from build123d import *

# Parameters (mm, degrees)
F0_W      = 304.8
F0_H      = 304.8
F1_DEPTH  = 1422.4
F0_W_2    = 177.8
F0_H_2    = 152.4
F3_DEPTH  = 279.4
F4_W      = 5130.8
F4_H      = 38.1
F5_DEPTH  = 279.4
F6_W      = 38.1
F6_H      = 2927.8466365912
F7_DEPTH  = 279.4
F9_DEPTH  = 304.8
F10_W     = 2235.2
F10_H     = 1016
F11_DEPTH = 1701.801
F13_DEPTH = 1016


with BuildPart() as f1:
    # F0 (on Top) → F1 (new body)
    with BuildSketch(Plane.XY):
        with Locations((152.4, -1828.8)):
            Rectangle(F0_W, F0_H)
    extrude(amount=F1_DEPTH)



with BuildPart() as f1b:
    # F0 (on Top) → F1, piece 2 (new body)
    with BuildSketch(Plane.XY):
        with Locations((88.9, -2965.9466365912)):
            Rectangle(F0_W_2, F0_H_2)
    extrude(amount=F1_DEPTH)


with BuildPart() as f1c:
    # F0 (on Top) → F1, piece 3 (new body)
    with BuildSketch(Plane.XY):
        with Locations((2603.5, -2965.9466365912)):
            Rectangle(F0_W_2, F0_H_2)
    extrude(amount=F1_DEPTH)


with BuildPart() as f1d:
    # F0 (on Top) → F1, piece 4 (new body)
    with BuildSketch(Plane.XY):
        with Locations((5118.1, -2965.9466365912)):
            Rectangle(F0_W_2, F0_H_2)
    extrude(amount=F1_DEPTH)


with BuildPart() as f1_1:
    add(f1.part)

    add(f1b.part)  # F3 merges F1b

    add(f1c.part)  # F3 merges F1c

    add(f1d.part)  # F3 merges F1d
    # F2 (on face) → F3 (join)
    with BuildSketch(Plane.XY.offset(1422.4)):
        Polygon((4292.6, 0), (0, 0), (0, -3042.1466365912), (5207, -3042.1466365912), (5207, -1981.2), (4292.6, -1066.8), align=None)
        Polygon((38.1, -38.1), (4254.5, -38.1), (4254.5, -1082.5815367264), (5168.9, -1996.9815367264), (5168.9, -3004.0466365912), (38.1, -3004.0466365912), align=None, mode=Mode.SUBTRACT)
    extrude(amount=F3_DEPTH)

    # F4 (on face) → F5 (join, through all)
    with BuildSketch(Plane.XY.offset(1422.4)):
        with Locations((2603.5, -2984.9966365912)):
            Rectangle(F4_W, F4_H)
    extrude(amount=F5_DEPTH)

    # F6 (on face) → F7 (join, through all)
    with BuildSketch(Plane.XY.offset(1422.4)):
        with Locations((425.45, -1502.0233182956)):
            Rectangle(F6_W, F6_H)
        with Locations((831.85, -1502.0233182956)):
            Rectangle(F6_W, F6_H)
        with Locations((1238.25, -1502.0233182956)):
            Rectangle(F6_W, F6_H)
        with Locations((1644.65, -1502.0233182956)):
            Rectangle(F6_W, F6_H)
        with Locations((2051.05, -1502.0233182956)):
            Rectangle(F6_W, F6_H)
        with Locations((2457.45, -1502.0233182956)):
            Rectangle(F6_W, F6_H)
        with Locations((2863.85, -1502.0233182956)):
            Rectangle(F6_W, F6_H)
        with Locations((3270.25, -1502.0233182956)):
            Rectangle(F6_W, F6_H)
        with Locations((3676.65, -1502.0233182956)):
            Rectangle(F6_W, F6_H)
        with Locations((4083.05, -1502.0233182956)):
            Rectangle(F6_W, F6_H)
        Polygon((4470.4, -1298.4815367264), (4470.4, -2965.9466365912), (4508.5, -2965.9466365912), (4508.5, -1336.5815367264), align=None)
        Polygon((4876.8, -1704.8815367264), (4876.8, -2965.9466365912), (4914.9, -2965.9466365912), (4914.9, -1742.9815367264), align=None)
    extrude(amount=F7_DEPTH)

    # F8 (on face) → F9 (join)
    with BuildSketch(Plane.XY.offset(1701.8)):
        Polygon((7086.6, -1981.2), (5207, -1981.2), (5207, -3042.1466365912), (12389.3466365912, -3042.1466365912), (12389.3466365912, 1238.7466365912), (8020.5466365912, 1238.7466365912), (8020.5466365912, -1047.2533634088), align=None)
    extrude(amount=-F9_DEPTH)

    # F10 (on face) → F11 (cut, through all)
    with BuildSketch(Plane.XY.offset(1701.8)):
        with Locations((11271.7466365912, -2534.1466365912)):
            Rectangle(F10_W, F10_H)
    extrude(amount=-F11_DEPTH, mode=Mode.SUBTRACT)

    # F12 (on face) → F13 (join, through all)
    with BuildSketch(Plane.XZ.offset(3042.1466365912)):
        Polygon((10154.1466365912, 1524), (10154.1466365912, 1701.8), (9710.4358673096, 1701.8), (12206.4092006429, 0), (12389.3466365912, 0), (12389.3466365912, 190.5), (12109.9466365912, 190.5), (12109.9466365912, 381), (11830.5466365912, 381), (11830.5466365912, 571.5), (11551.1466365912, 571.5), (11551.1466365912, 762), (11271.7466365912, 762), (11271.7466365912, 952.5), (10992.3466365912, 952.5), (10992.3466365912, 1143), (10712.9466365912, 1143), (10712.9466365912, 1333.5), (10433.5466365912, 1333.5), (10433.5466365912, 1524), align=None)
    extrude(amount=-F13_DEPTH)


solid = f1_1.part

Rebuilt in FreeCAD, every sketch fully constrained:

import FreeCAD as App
import Part
import Sketcher

V = App.Vector
Q = App.Units.Quantity

doc = App.newDocument("Part")
params = doc.addObject("Spreadsheet::Sheet", "Params")
for row, (alias, value) in enumerate([
    ("sketch1_width", "12 in"),
    ("pad1_length", "56 in"),
    ("sketch2_width", "7 in"),
    ("sketch2_height", "6 in"),
    ("pad2_length", "56 in"),
    ("sketch3_width", "7 in"),
    ("sketch3_height", "6 in"),
    ("pad3_length", "56 in"),
    ("sketch4_width", "7 in"),
    ("sketch4_height", "6 in"),
    ("pad4_length", "56 in"),
    ("sketch5_width", "169 in"),
    ("sketch5_width2", "205 in"),
    ("sketch5_width3", "166 in"),
    ("sketch5_height", "42 in"),
    ("pad5_length", "11 in"),
    ("sketch6_width", "202 in"),
    ("sketch6_height", "1.5 in"),
    ("pad6_length", "11 in"),
    ("sketch7_width", "1.5 in"),
    ("pad7_length", "11 in"),
    ("sketch8_width", "74 in"),
    ("sketch8_width2", "172 in"),
    ("sketch8_height", "90 in"),
    ("sketch8_length", "52 in"),
    ("pad8_length", "12 in"),
    ("sketch9_width", "88 in"),
    ("sketch9_height", "40 in"),
    ("sketch10_width", "11 in"),
    ("sketch10_height", "7 in"),
    ("sketch10_height2", "7.5 in"),
    ("pad9_length", "40 in"),
], start=1):
    params.set(f"A{row}", alias)
    params.set(f"B{row}", "=" + value)
    params.setAlias(f"B{row}", alias)

body = doc.addObject("PartDesign::Body", "Body")

# Sketch on XY plane
sketch1 = body.newObject("Sketcher::SketchObject", "Sketch")
sketch1.AttachmentSupport = (doc.getObject("XY_Plane"), [""])
sketch1.MapMode = "FlatFace"
sketch1.addGeometry(Part.LineSegment(V(0, -1676, 0), V(0, -1981, 0)), False)
sketch1.addGeometry(Part.LineSegment(V(0, -1981, 0), V(305, -1981, 0)), False)
sketch1.addGeometry(Part.LineSegment(V(305, -1981, 0), V(305, -1676, 0)), False)
sketch1.addGeometry(Part.LineSegment(V(305, -1676, 0), V(0, -1676, 0)), False)
sketch1.addConstraint(Sketcher.Constraint("Coincident", 0, 2, 1, 1))
sketch1.addConstraint(Sketcher.Constraint("Coincident", 1, 2, 2, 1))
sketch1.addConstraint(Sketcher.Constraint("Coincident", 2, 2, 3, 1))
sketch1.addConstraint(Sketcher.Constraint("Coincident", 3, 2, 0, 1))
sketch1.addConstraint(Sketcher.Constraint("Vertical", 0))
sketch1.addConstraint(Sketcher.Constraint("Horizontal", 1))
sketch1.addConstraint(Sketcher.Constraint("Vertical", 2))
sketch1.addConstraint(Sketcher.Constraint("Horizontal", 3))
sketch1.addConstraint(Sketcher.Constraint("PointOnObject", 0, 2, -2))
sketch1.addConstraint(Sketcher.Constraint("Equal", 3, 0))
sketch1.addConstraint(Sketcher.Constraint("DistanceX", 1, 1, 1, 2, Q("12 in")))
sketch1.addConstraint(Sketcher.Constraint("DistanceY", 0, 2, -1, 1, Q("78 in")))
sketch1.setExpression("Constraints[10]", "Params.sketch1_width")
pad1 = body.newObject("PartDesign::Pad", "Pad")
pad1.Profile = sketch1
pad1.setExpression("Length", "Params.pad1_length")
body2 = doc.addObject("PartDesign::Body", "Body001")

# Sketch on XY plane
sketch2 = body2.newObject("Sketcher::SketchObject", "Sketch001")
sketch2.AttachmentSupport = (doc.getObject("XY_Plane001"), [""])
sketch2.MapMode = "FlatFace"
sketch2.addGeometry(Part.LineSegment(V(0, -2890, 0), V(0, -3042, 0)), False)
sketch2.addGeometry(Part.LineSegment(V(0, -3042, 0), V(178, -3042, 0)), False)
sketch2.addGeometry(Part.LineSegment(V(178, -3042, 0), V(178, -2890, 0)), False)
sketch2.addGeometry(Part.LineSegment(V(178, -2890, 0), V(0, -2890, 0)), False)
sketch2.addConstraint(Sketcher.Constraint("Coincident", 0, 2, 1, 1))
sketch2.addConstraint(Sketcher.Constraint("Coincident", 1, 2, 2, 1))
sketch2.addConstraint(Sketcher.Constraint("Coincident", 2, 2, 3, 1))
sketch2.addConstraint(Sketcher.Constraint("Coincident", 3, 2, 0, 1))
sketch2.addConstraint(Sketcher.Constraint("Vertical", 0))
sketch2.addConstraint(Sketcher.Constraint("Horizontal", 1))
sketch2.addConstraint(Sketcher.Constraint("Vertical", 2))
sketch2.addConstraint(Sketcher.Constraint("Horizontal", 3))
sketch2.addConstraint(Sketcher.Constraint("PointOnObject", 0, 2, -2))
sketch2.addConstraint(Sketcher.Constraint("DistanceX", 1, 1, 1, 2, Q("7 in")))
sketch2.addConstraint(Sketcher.Constraint("DistanceY", 0, 2, 0, 1, Q("6 in")))
sketch2.addConstraint(Sketcher.Constraint("DistanceY", 0, 2, -1, 1, Q("3042.146637 mm")))
sketch2.setExpression("Constraints[9]", "Params.sketch2_width")
sketch2.setExpression("Constraints[10]", "Params.sketch2_height")
pad2 = body2.newObject("PartDesign::Pad", "Pad001")
pad2.Profile = sketch2
pad2.setExpression("Length", "Params.pad2_length")
body3 = doc.addObject("PartDesign::Body", "Body002")

# Sketch on XY plane
sketch3 = body3.newObject("Sketcher::SketchObject", "Sketch002")
sketch3.AttachmentSupport = (doc.getObject("XY_Plane002"), [""])
sketch3.MapMode = "FlatFace"
sketch3.addGeometry(Part.LineSegment(V(2515, -2890, 0), V(2515, -3042, 0)), False)
sketch3.addGeometry(Part.LineSegment(V(2515, -3042, 0), V(2692, -3042, 0)), False)
sketch3.addGeometry(Part.LineSegment(V(2692, -3042, 0), V(2692, -2890, 0)), False)
sketch3.addGeometry(Part.LineSegment(V(2692, -2890, 0), V(2515, -2890, 0)), False)
sketch3.addConstraint(Sketcher.Constraint("Coincident", 0, 2, 1, 1))
sketch3.addConstraint(Sketcher.Constraint("Coincident", 1, 2, 2, 1))
sketch3.addConstraint(Sketcher.Constraint("Coincident", 2, 2, 3, 1))
sketch3.addConstraint(Sketcher.Constraint("Coincident", 3, 2, 0, 1))
sketch3.addConstraint(Sketcher.Constraint("Vertical", 0))
sketch3.addConstraint(Sketcher.Constraint("Horizontal", 1))
sketch3.addConstraint(Sketcher.Constraint("Vertical", 2))
sketch3.addConstraint(Sketcher.Constraint("Horizontal", 3))
sketch3.addConstraint(Sketcher.Constraint("DistanceX", 1, 1, 1, 2, Q("7 in")))
sketch3.addConstraint(Sketcher.Constraint("DistanceY", 0, 2, 0, 1, Q("6 in")))
sketch3.addConstraint(Sketcher.Constraint("DistanceX", -1, 1, 0, 2, Q("99 in")))
sketch3.addConstraint(Sketcher.Constraint("DistanceY", 0, 2, -1, 1, Q("3042.146637 mm")))
sketch3.setExpression("Constraints[8]", "Params.sketch3_width")
sketch3.setExpression("Constraints[9]", "Params.sketch3_height")
pad3 = body3.newObject("PartDesign::Pad", "Pad002")
pad3.Profile = sketch3
pad3.setExpression("Length", "Params.pad3_length")
body4 = doc.addObject("PartDesign::Body", "Body003")

# Sketch on XY plane
sketch4 = body4.newObject("Sketcher::SketchObject", "Sketch003")
sketch4.AttachmentSupport = (doc.getObject("XY_Plane003"), [""])
sketch4.MapMode = "FlatFace"
sketch4.addGeometry(Part.LineSegment(V(5029, -2890, 0), V(5029, -3042, 0)), False)
sketch4.addGeometry(Part.LineSegment(V(5029, -3042, 0), V(5207, -3042, 0)), False)
sketch4.addGeometry(Part.LineSegment(V(5207, -3042, 0), V(5207, -2890, 0)), False)
sketch4.addGeometry(Part.LineSegment(V(5207, -2890, 0), V(5029, -2890, 0)), False)
sketch4.addConstraint(Sketcher.Constraint("Coincident", 0, 2, 1, 1))
sketch4.addConstraint(Sketcher.Constraint("Coincident", 1, 2, 2, 1))
sketch4.addConstraint(Sketcher.Constraint("Coincident", 2, 2, 3, 1))
sketch4.addConstraint(Sketcher.Constraint("Coincident", 3, 2, 0, 1))
sketch4.addConstraint(Sketcher.Constraint("Vertical", 0))
sketch4.addConstraint(Sketcher.Constraint("Horizontal", 1))
sketch4.addConstraint(Sketcher.Constraint("Vertical", 2))
sketch4.addConstraint(Sketcher.Constraint("Horizontal", 3))
sketch4.addConstraint(Sketcher.Constraint("DistanceX", 1, 1, 1, 2, Q("7 in")))
sketch4.addConstraint(Sketcher.Constraint("DistanceY", 0, 2, 0, 1, Q("6 in")))
sketch4.addConstraint(Sketcher.Constraint("DistanceX", -1, 1, 0, 2, Q("198 in")))
sketch4.addConstraint(Sketcher.Constraint("DistanceY", 0, 2, -1, 1, Q("3042.146637 mm")))
sketch4.setExpression("Constraints[8]", "Params.sketch4_width")
sketch4.setExpression("Constraints[9]", "Params.sketch4_height")
pad4 = body4.newObject("PartDesign::Pad", "Pad003")
pad4.Profile = sketch4
pad4.setExpression("Length", "Params.pad4_length")
body.AllowCompound = True
doc.recompute()

boolean = body.newObject("PartDesign::Boolean", "Boolean")
boolean.Type = "Fuse"
boolean.addObjects([body2])
doc.recompute()

boolean2 = body.newObject("PartDesign::Boolean", "Boolean001")
boolean2.Type = "Fuse"
boolean2.addObjects([body3])
doc.recompute()

boolean3 = body.newObject("PartDesign::Boolean", "Boolean002")
boolean3.Type = "Fuse"
boolean3.addObjects([body4])

# Sketch on XY plane
sketch5 = body.newObject("Sketcher::SketchObject", "Sketch004")
sketch5.AttachmentSupport = (doc.getObject("XY_Plane"), [""])
sketch5.MapMode = "FlatFace"
sketch5.AttachmentOffset = App.Placement(V(0, 0, 56 * 25.4), App.Rotation())
sketch5.addGeometry(Part.LineSegment(V(4293, 0, 0), V(0, 0, 0)), False)
sketch5.addGeometry(Part.LineSegment(V(0, 0, 0), V(0, -3042, 0)), False)
sketch5.addGeometry(Part.LineSegment(V(0, -3042, 0), V(5207, -3042, 0)), False)
sketch5.addGeometry(Part.LineSegment(V(5207, -3042, 0), V(5207, -1981, 0)), False)
sketch5.addGeometry(Part.LineSegment(V(5207, -1981, 0), V(4293, -1067, 0)), False)
sketch5.addGeometry(Part.LineSegment(V(4293, -1067, 0), V(4293, 0, 0)), False)
sketch5.addGeometry(Part.LineSegment(V(38, -3004, 0), V(38, -38, 0)), False)
sketch5.addGeometry(Part.LineSegment(V(38, -38, 0), V(4254, -38, 0)), False)
sketch5.addGeometry(Part.LineSegment(V(4254, -38, 0), V(4254, -1083, 0)), False)
sketch5.addGeometry(Part.LineSegment(V(4254, -1083, 0), V(5169, -1997, 0)), False)
sketch5.addGeometry(Part.LineSegment(V(5169, -1997, 0), V(5169, -3004, 0)), False)
sketch5.addGeometry(Part.LineSegment(V(5169, -3004, 0), V(38, -3004, 0)), False)
sketch5.addConstraint(Sketcher.Constraint("Coincident", 0, 2, 1, 1))
sketch5.addConstraint(Sketcher.Constraint("Coincident", 1, 2, 2, 1))
sketch5.addConstraint(Sketcher.Constraint("Coincident", 2, 2, 3, 1))
sketch5.addConstraint(Sketcher.Constraint("Coincident", 3, 2, 4, 1))
sketch5.addConstraint(Sketcher.Constraint("Coincident", 4, 2, 5, 1))
sketch5.addConstraint(Sketcher.Constraint("Coincident", 5, 2, 0, 1))
sketch5.addConstraint(Sketcher.Constraint("Coincident", 6, 2, 7, 1))
sketch5.addConstraint(Sketcher.Constraint("Coincident", 7, 2, 8, 1))
sketch5.addConstraint(Sketcher.Constraint("Coincident", 8, 2, 9, 1))
sketch5.addConstraint(Sketcher.Constraint("Coincident", 9, 2, 10, 1))
sketch5.addConstraint(Sketcher.Constraint("Coincident", 10, 2, 11, 1))
sketch5.addConstraint(Sketcher.Constraint("Coincident", 11, 2, 6, 1))
sketch5.addConstraint(Sketcher.Constraint("Horizontal", 0))
sketch5.addConstraint(Sketcher.Constraint("Vertical", 1))
sketch5.addConstraint(Sketcher.Constraint("Horizontal", 2))
sketch5.addConstraint(Sketcher.Constraint("Vertical", 3))
sketch5.addConstraint(Sketcher.Constraint("Vertical", 5))
sketch5.addConstraint(Sketcher.Constraint("Vertical", 6))
sketch5.addConstraint(Sketcher.Constraint("Horizontal", 7))
sketch5.addConstraint(Sketcher.Constraint("Vertical", 8))
sketch5.addConstraint(Sketcher.Constraint("Vertical", 10))
sketch5.addConstraint(Sketcher.Constraint("Horizontal", 11))
sketch5.addConstraint(Sketcher.Constraint("Coincident", 0, 2, -1, 1))
sketch5.addConstraint(Sketcher.Constraint("Parallel", 4, 9))
sketch5.addConstraint(Sketcher.Constraint("Equal", 4, 9))
sketch5.addConstraint(Sketcher.Constraint("DistanceX", 0, 2, 0, 1, Q("169 in")))
sketch5.addConstraint(Sketcher.Constraint("DistanceX", 2, 1, 2, 2, Q("205 in")))
sketch5.addConstraint(Sketcher.Constraint("DistanceX", 7, 1, 7, 2, Q("166 in")))
sketch5.addConstraint(Sketcher.Constraint("DistanceY", 5, 1, 5, 2, Q("42 in")))
sketch5.addConstraint(Sketcher.Constraint("DistanceY", 3, 2, -1, 1, Q("78 in")))
sketch5.addConstraint(Sketcher.Constraint("DistanceX", -1, 1, 6, 2, Q("1.5 in")))
sketch5.addConstraint(Sketcher.Constraint("DistanceY", 6, 2, -1, 1, Q("1.5 in")))
sketch5.addConstraint(Sketcher.Constraint("DistanceY", 2, 2, 10, 2, Q("1.5 in")))
sketch5.addConstraint(Sketcher.Constraint("DistanceY", 10, 2, 10, 1, Q("1007.0651 mm")))
sketch5.addConstraint(Sketcher.Constraint("DistanceY", 1, 2, 1, 1, Q("3042.146637 mm")))
sketch5.setExpression("Constraints[25]", "Params.sketch5_width")
sketch5.setExpression("Constraints[26]", "Params.sketch5_width2")
sketch5.setExpression("Constraints[27]", "Params.sketch5_width3")
sketch5.setExpression("Constraints[28]", "Params.sketch5_height")
pad5 = body.newObject("PartDesign::Pad", "Pad004")
pad5.Profile = sketch5
pad5.setExpression("Length", "Params.pad5_length")

# Sketch on XY plane
sketch6 = body.newObject("Sketcher::SketchObject", "Sketch005")
sketch6.AttachmentSupport = (doc.getObject("XY_Plane"), [""])
sketch6.MapMode = "FlatFace"
sketch6.AttachmentOffset = App.Placement(V(0, 0, 56 * 25.4), App.Rotation())
sketch6.addGeometry(Part.LineSegment(V(38, -2966, 0), V(38, -3004, 0)), False)
sketch6.addGeometry(Part.LineSegment(V(38, -3004, 0), V(5169, -3004, 0)), False)
sketch6.addGeometry(Part.LineSegment(V(5169, -3004, 0), V(5169, -2966, 0)), False)
sketch6.addGeometry(Part.LineSegment(V(5169, -2966, 0), V(38, -2966, 0)), False)
sketch6.addConstraint(Sketcher.Constraint("Coincident", 0, 2, 1, 1))
sketch6.addConstraint(Sketcher.Constraint("Coincident", 1, 2, 2, 1))
sketch6.addConstraint(Sketcher.Constraint("Coincident", 2, 2, 3, 1))
sketch6.addConstraint(Sketcher.Constraint("Coincident", 3, 2, 0, 1))
sketch6.addConstraint(Sketcher.Constraint("Vertical", 0))
sketch6.addConstraint(Sketcher.Constraint("Horizontal", 1))
sketch6.addConstraint(Sketcher.Constraint("Vertical", 2))
sketch6.addConstraint(Sketcher.Constraint("Horizontal", 3))
sketch6.addConstraint(Sketcher.Constraint("DistanceX", 1, 1, 1, 2, Q("202 in")))
sketch6.addConstraint(Sketcher.Constraint("DistanceY", 0, 2, 0, 1, Q("1.5 in")))
sketch6.addConstraint(Sketcher.Constraint("DistanceX", -1, 1, 0, 2, Q("1.5 in")))
sketch6.addConstraint(Sketcher.Constraint("DistanceY", 0, 2, -1, 1, Q("3004.046637 mm")))
sketch6.setExpression("Constraints[8]", "Params.sketch6_width")
sketch6.setExpression("Constraints[9]", "Params.sketch6_height")
pad6 = body.newObject("PartDesign::Pad", "Pad005")
pad6.Profile = sketch6
pad6.setExpression("Length", "Params.pad6_length")

# Sketch on XY plane
sketch7 = body.newObject("Sketcher::SketchObject", "Sketch006")
sketch7.AttachmentSupport = (doc.getObject("XY_Plane"), [""])
sketch7.MapMode = "FlatFace"
sketch7.AttachmentOffset = App.Placement(V(0, 0, 56 * 25.4), App.Rotation())
sketch7.addGeometry(Part.LineSegment(V(406, -38, 0), V(406, -2966, 0)), False)
sketch7.addGeometry(Part.LineSegment(V(406, -2966, 0), V(444, -2966, 0)), False)
sketch7.addGeometry(Part.LineSegment(V(444, -2966, 0), V(444, -38, 0)), False)
sketch7.addGeometry(Part.LineSegment(V(444, -38, 0), V(406, -38, 0)), False)
sketch7.addGeometry(Part.LineSegment(V(813, -38, 0), V(813, -2966, 0)), False)
sketch7.addGeometry(Part.LineSegment(V(813, -2966, 0), V(851, -2966, 0)), False)
sketch7.addGeometry(Part.LineSegment(V(851, -2966, 0), V(851, -38, 0)), False)
sketch7.addGeometry(Part.LineSegment(V(851, -38, 0), V(813, -38, 0)), False)
sketch7.addGeometry(Part.LineSegment(V(1219, -38, 0), V(1219, -2966, 0)), False)
sketch7.addGeometry(Part.LineSegment(V(1219, -2966, 0), V(1257, -2966, 0)), False)
sketch7.addGeometry(Part.LineSegment(V(1257, -2966, 0), V(1257, -38, 0)), False)
sketch7.addGeometry(Part.LineSegment(V(1257, -38, 0), V(1219, -38, 0)), False)
sketch7.addGeometry(Part.LineSegment(V(1626, -38, 0), V(1626, -2966, 0)), False)
sketch7.addGeometry(Part.LineSegment(V(1626, -2966, 0), V(1664, -2966, 0)), False)
sketch7.addGeometry(Part.LineSegment(V(1664, -2966, 0), V(1664, -38, 0)), False)
sketch7.addGeometry(Part.LineSegment(V(1664, -38, 0), V(1626, -38, 0)), False)
sketch7.addGeometry(Part.LineSegment(V(2032, -38, 0), V(2032, -2966, 0)), False)
sketch7.addGeometry(Part.LineSegment(V(2032, -2966, 0), V(2070, -2966, 0)), False)
sketch7.addGeometry(Part.LineSegment(V(2070, -2966, 0), V(2070, -38, 0)), False)
sketch7.addGeometry(Part.LineSegment(V(2070, -38, 0), V(2032, -38, 0)), False)
sketch7.addGeometry(Part.LineSegment(V(2438, -38, 0), V(2438, -2966, 0)), False)
sketch7.addGeometry(Part.LineSegment(V(2438, -2966, 0), V(2476, -2966, 0)), False)
sketch7.addGeometry(Part.LineSegment(V(2476, -2966, 0), V(2476, -38, 0)), False)
sketch7.addGeometry(Part.LineSegment(V(2476, -38, 0), V(2438, -38, 0)), False)
sketch7.addGeometry(Part.LineSegment(V(2845, -38, 0), V(2845, -2966, 0)), False)
sketch7.addGeometry(Part.LineSegment(V(2845, -2966, 0), V(2883, -2966, 0)), False)
sketch7.addGeometry(Part.LineSegment(V(2883, -2966, 0), V(2883, -38, 0)), False)
sketch7.addGeometry(Part.LineSegment(V(2883, -38, 0), V(2845, -38, 0)), False)
sketch7.addGeometry(Part.LineSegment(V(3251, -38, 0), V(3251, -2966, 0)), False)
sketch7.addGeometry(Part.LineSegment(V(3251, -2966, 0), V(3289, -2966, 0)), False)
sketch7.addGeometry(Part.LineSegment(V(3289, -2966, 0), V(3289, -38, 0)), False)
sketch7.addGeometry(Part.LineSegment(V(3289, -38, 0), V(3251, -38, 0)), False)
sketch7.addGeometry(Part.LineSegment(V(3658, -38, 0), V(3658, -2966, 0)), False)
sketch7.addGeometry(Part.LineSegment(V(3658, -2966, 0), V(3696, -2966, 0)), False)
sketch7.addGeometry(Part.LineSegment(V(3696, -2966, 0), V(3696, -38, 0)), False)
sketch7.addGeometry(Part.LineSegment(V(3696, -38, 0), V(3658, -38, 0)), False)
sketch7.addGeometry(Part.LineSegment(V(4064, -38, 0), V(4064, -2966, 0)), False)
sketch7.addGeometry(Part.LineSegment(V(4064, -2966, 0), V(4102, -2966, 0)), False)
sketch7.addGeometry(Part.LineSegment(V(4102, -2966, 0), V(4102, -38, 0)), False)
sketch7.addGeometry(Part.LineSegment(V(4102, -38, 0), V(4064, -38, 0)), False)
sketch7.addGeometry(Part.LineSegment(V(4470, -1298, 0), V(4470, -2966, 0)), False)
sketch7.addGeometry(Part.LineSegment(V(4470, -2966, 0), V(4508, -2966, 0)), False)
sketch7.addGeometry(Part.LineSegment(V(4508, -2966, 0), V(4508, -1337, 0)), False)
sketch7.addGeometry(Part.LineSegment(V(4508, -1337, 0), V(4470, -1298, 0)), False)
sketch7.addGeometry(Part.LineSegment(V(4877, -1705, 0), V(4877, -2966, 0)), False)
sketch7.addGeometry(Part.LineSegment(V(4877, -2966, 0), V(4915, -2966, 0)), False)
sketch7.addGeometry(Part.LineSegment(V(4915, -2966, 0), V(4915, -1743, 0)), False)
sketch7.addGeometry(Part.LineSegment(V(4915, -1743, 0), V(4877, -1705, 0)), False)
sketch7.addConstraint(Sketcher.Constraint("Coincident", 0, 2, 1, 1))
sketch7.addConstraint(Sketcher.Constraint("Coincident", 1, 2, 2, 1))
sketch7.addConstraint(Sketcher.Constraint("Coincident", 2, 2, 3, 1))
sketch7.addConstraint(Sketcher.Constraint("Coincident", 3, 2, 0, 1))
sketch7.addConstraint(Sketcher.Constraint("Coincident", 4, 2, 5, 1))
sketch7.addConstraint(Sketcher.Constraint("Coincident", 5, 2, 6, 1))
sketch7.addConstraint(Sketcher.Constraint("Coincident", 6, 2, 7, 1))
sketch7.addConstraint(Sketcher.Constraint("Coincident", 7, 2, 4, 1))
sketch7.addConstraint(Sketcher.Constraint("Coincident", 8, 2, 9, 1))
sketch7.addConstraint(Sketcher.Constraint("Coincident", 9, 2, 10, 1))
sketch7.addConstraint(Sketcher.Constraint("Coincident", 10, 2, 11, 1))
sketch7.addConstraint(Sketcher.Constraint("Coincident", 11, 2, 8, 1))
sketch7.addConstraint(Sketcher.Constraint("Coincident", 12, 2, 13, 1))
sketch7.addConstraint(Sketcher.Constraint("Coincident", 13, 2, 14, 1))
sketch7.addConstraint(Sketcher.Constraint("Coincident", 14, 2, 15, 1))
sketch7.addConstraint(Sketcher.Constraint("Coincident", 15, 2, 12, 1))
sketch7.addConstraint(Sketcher.Constraint("Coincident", 16, 2, 17, 1))
sketch7.addConstraint(Sketcher.Constraint("Coincident", 17, 2, 18, 1))
sketch7.addConstraint(Sketcher.Constraint("Coincident", 18, 2, 19, 1))
sketch7.addConstraint(Sketcher.Constraint("Coincident", 19, 2, 16, 1))
sketch7.addConstraint(Sketcher.Constraint("Coincident", 20, 2, 21, 1))
sketch7.addConstraint(Sketcher.Constraint("Coincident", 21, 2, 22, 1))
sketch7.addConstraint(Sketcher.Constraint("Coincident", 22, 2, 23, 1))
sketch7.addConstraint(Sketcher.Constraint("Coincident", 23, 2, 20, 1))
sketch7.addConstraint(Sketcher.Constraint("Coincident", 24, 2, 25, 1))
sketch7.addConstraint(Sketcher.Constraint("Coincident", 25, 2, 26, 1))
sketch7.addConstraint(Sketcher.Constraint("Coincident", 26, 2, 27, 1))
sketch7.addConstraint(Sketcher.Constraint("Coincident", 27, 2, 24, 1))
sketch7.addConstraint(Sketcher.Constraint("Coincident", 28, 2, 29, 1))
sketch7.addConstraint(Sketcher.Constraint("Coincident", 29, 2, 30, 1))
sketch7.addConstraint(Sketcher.Constraint("Coincident", 30, 2, 31, 1))
sketch7.addConstraint(Sketcher.Constraint("Coincident", 31, 2, 28, 1))
sketch7.addConstraint(Sketcher.Constraint("Coincident", 32, 2, 33, 1))
sketch7.addConstraint(Sketcher.Constraint("Coincident", 33, 2, 34, 1))
sketch7.addConstraint(Sketcher.Constraint("Coincident", 34, 2, 35, 1))
sketch7.addConstraint(Sketcher.Constraint("Coincident", 35, 2, 32, 1))
sketch7.addConstraint(Sketcher.Constraint("Coincident", 36, 2, 37, 1))
sketch7.addConstraint(Sketcher.Constraint("Coincident", 37, 2, 38, 1))
sketch7.addConstraint(Sketcher.Constraint("Coincident", 38, 2, 39, 1))
sketch7.addConstraint(Sketcher.Constraint("Coincident", 39, 2, 36, 1))
sketch7.addConstraint(Sketcher.Constraint("Coincident", 40, 2, 41, 1))
sketch7.addConstraint(Sketcher.Constraint("Coincident", 41, 2, 42, 1))
sketch7.addConstraint(Sketcher.Constraint("Coincident", 42, 2, 43, 1))
sketch7.addConstraint(Sketcher.Constraint("Coincident", 43, 2, 40, 1))
sketch7.addConstraint(Sketcher.Constraint("Coincident", 44, 2, 45, 1))
sketch7.addConstraint(Sketcher.Constraint("Coincident", 45, 2, 46, 1))
sketch7.addConstraint(Sketcher.Constraint("Coincident", 46, 2, 47, 1))
sketch7.addConstraint(Sketcher.Constraint("Coincident", 47, 2, 44, 1))
sketch7.addConstraint(Sketcher.Constraint("Vertical", 0))
sketch7.addConstraint(Sketcher.Constraint("Horizontal", 1))
sketch7.addConstraint(Sketcher.Constraint("Vertical", 2))
sketch7.addConstraint(Sketcher.Constraint("Horizontal", 3))
sketch7.addConstraint(Sketcher.Constraint("Vertical", 4))
sketch7.addConstraint(Sketcher.Constraint("Horizontal", 5))
sketch7.addConstraint(Sketcher.Constraint("Vertical", 6))
sketch7.addConstraint(Sketcher.Constraint("Horizontal", 7))
sketch7.addConstraint(Sketcher.Constraint("Vertical", 8))
sketch7.addConstraint(Sketcher.Constraint("Horizontal", 9))
sketch7.addConstraint(Sketcher.Constraint("Vertical", 10))
sketch7.addConstraint(Sketcher.Constraint("Horizontal", 11))
sketch7.addConstraint(Sketcher.Constraint("Vertical", 12))
sketch7.addConstraint(Sketcher.Constraint("Horizontal", 13))
sketch7.addConstraint(Sketcher.Constraint("Vertical", 14))
sketch7.addConstraint(Sketcher.Constraint("Horizontal", 15))
sketch7.addConstraint(Sketcher.Constraint("Vertical", 16))
sketch7.addConstraint(Sketcher.Constraint("Horizontal", 17))
sketch7.addConstraint(Sketcher.Constraint("Vertical", 18))
sketch7.addConstraint(Sketcher.Constraint("Horizontal", 19))
sketch7.addConstraint(Sketcher.Constraint("Vertical", 20))
sketch7.addConstraint(Sketcher.Constraint("Horizontal", 21))
sketch7.addConstraint(Sketcher.Constraint("Vertical", 22))
sketch7.addConstraint(Sketcher.Constraint("Horizontal", 23))
sketch7.addConstraint(Sketcher.Constraint("Vertical", 24))
sketch7.addConstraint(Sketcher.Constraint("Horizontal", 25))
sketch7.addConstraint(Sketcher.Constraint("Vertical", 26))
sketch7.addConstraint(Sketcher.Constraint("Horizontal", 27))
sketch7.addConstraint(Sketcher.Constraint("Vertical", 28))
sketch7.addConstraint(Sketcher.Constraint("Horizontal", 29))
sketch7.addConstraint(Sketcher.Constraint("Vertical", 30))
sketch7.addConstraint(Sketcher.Constraint("Horizontal", 31))
sketch7.addConstraint(Sketcher.Constraint("Vertical", 32))
sketch7.addConstraint(Sketcher.Constraint("Horizontal", 33))
sketch7.addConstraint(Sketcher.Constraint("Vertical", 34))
sketch7.addConstraint(Sketcher.Constraint("Horizontal", 35))
sketch7.addConstraint(Sketcher.Constraint("Vertical", 36))
sketch7.addConstraint(Sketcher.Constraint("Horizontal", 37))
sketch7.addConstraint(Sketcher.Constraint("Vertical", 38))
sketch7.addConstraint(Sketcher.Constraint("Horizontal", 39))
sketch7.addConstraint(Sketcher.Constraint("Vertical", 40))
sketch7.addConstraint(Sketcher.Constraint("Horizontal", 41))
sketch7.addConstraint(Sketcher.Constraint("Vertical", 42))
sketch7.addConstraint(Sketcher.Constraint("Vertical", 44))
sketch7.addConstraint(Sketcher.Constraint("Horizontal", 45))
sketch7.addConstraint(Sketcher.Constraint("Vertical", 46))
sketch7.addConstraint(Sketcher.Constraint("Parallel", 43, 47))
sketch7.addConstraint(Sketcher.Constraint("Horizontal", 1, 2, 4, 2))
sketch7.addConstraint(Sketcher.Constraint("Horizontal", 3, 2, 6, 2))
sketch7.addConstraint(Sketcher.Constraint("Horizontal", 5, 2, 8, 2))
sketch7.addConstraint(Sketcher.Constraint("Horizontal", 7, 2, 10, 2))
sketch7.addConstraint(Sketcher.Constraint("Horizontal", 9, 2, 12, 2))
sketch7.addConstraint(Sketcher.Constraint("Horizontal", 11, 2, 14, 2))
sketch7.addConstraint(Sketcher.Constraint("Horizontal", 13, 2, 16, 2))
sketch7.addConstraint(Sketcher.Constraint("Horizontal", 15, 2, 18, 2))
sketch7.addConstraint(Sketcher.Constraint("Horizontal", 17, 2, 20, 2))
sketch7.addConstraint(Sketcher.Constraint("Horizontal", 19, 2, 22, 2))
sketch7.addConstraint(Sketcher.Constraint("Horizontal", 21, 2, 24, 2))
sketch7.addConstraint(Sketcher.Constraint("Horizontal", 23, 2, 26, 2))
sketch7.addConstraint(Sketcher.Constraint("Horizontal", 25, 2, 28, 2))
sketch7.addConstraint(Sketcher.Constraint("Horizontal", 27, 2, 30, 2))
sketch7.addConstraint(Sketcher.Constraint("Horizontal", 29, 2, 32, 2))
sketch7.addConstraint(Sketcher.Constraint("Horizontal", 31, 2, 34, 2))
sketch7.addConstraint(Sketcher.Constraint("Horizontal", 33, 2, 36, 2))
sketch7.addConstraint(Sketcher.Constraint("Horizontal", 35, 2, 38, 2))
sketch7.addConstraint(Sketcher.Constraint("Horizontal", 37, 2, 40, 2))
sketch7.addConstraint(Sketcher.Constraint("Horizontal", 41, 2, 44, 2))
sketch7.addConstraint(Sketcher.Constraint("Equal", 3, 5))
sketch7.addConstraint(Sketcher.Constraint("Equal", 7, 9))
sketch7.addConstraint(Sketcher.Constraint("Equal", 11, 13))
sketch7.addConstraint(Sketcher.Constraint("Equal", 15, 17))
sketch7.addConstraint(Sketcher.Constraint("Equal", 19, 21))
sketch7.addConstraint(Sketcher.Constraint("Equal", 23, 25))
sketch7.addConstraint(Sketcher.Constraint("Equal", 27, 29))
sketch7.addConstraint(Sketcher.Constraint("Equal", 31, 33))
sketch7.addConstraint(Sketcher.Constraint("Equal", 35, 37))
sketch7.addConstraint(Sketcher.Constraint("Equal", 39, 41))
sketch7.addConstraint(Sketcher.Constraint("Equal", 41, 45))
sketch7.addConstraint(Sketcher.Constraint("DistanceX", 1, 1, 1, 2, Q("1.5 in")))
sketch7.addConstraint(Sketcher.Constraint("DistanceX", -1, 1, 0, 2, Q("16 in")))
sketch7.addConstraint(Sketcher.Constraint("DistanceX", -1, 1, 4, 2, Q("32 in")))
sketch7.addConstraint(Sketcher.Constraint("DistanceX", -1, 1, 8, 2, Q("48 in")))
sketch7.addConstraint(Sketcher.Constraint("DistanceX", -1, 1, 12, 2, Q("64 in")))
sketch7.addConstraint(Sketcher.Constraint("DistanceX", -1, 1, 16, 2, Q("80 in")))
sketch7.addConstraint(Sketcher.Constraint("DistanceX", -1, 1, 20, 2, Q("96 in")))
sketch7.addConstraint(Sketcher.Constraint("DistanceX", -1, 1, 24, 2, Q("112 in")))
sketch7.addConstraint(Sketcher.Constraint("DistanceX", -1, 1, 28, 2, Q("128 in")))
sketch7.addConstraint(Sketcher.Constraint("DistanceX", -1, 1, 32, 2, Q("144 in")))
sketch7.addConstraint(Sketcher.Constraint("DistanceX", -1, 1, 36, 2, Q("160 in")))
sketch7.addConstraint(Sketcher.Constraint("DistanceX", -1, 1, 40, 2, Q("176 in")))
sketch7.addConstraint(Sketcher.Constraint("DistanceX", -1, 1, 44, 2, Q("192 in")))
sketch7.addConstraint(Sketcher.Constraint("Angle", 43, Q("135 deg")))
sketch7.addConstraint(Sketcher.Constraint("DistanceY", 46, 2, 42, 2, Q("16 in")))
sketch7.addConstraint(Sketcher.Constraint("DistanceY", 2, 2, -1, 1, Q("1.5 in")))
sketch7.addConstraint(Sketcher.Constraint("DistanceY", 40, 2, 40, 1, Q("1667.4651 mm")))
sketch7.addConstraint(Sketcher.Constraint("DistanceY", 0, 2, 0, 1, Q("2927.846637 mm")))
sketch7.setExpression("Constraints[126]", "Params.sketch7_width")
pad7 = body.newObject("PartDesign::Pad", "Pad006")
pad7.Profile = sketch7
pad7.setExpression("Length", "Params.pad7_length")

# Sketch on XY plane
sketch8 = body.newObject("Sketcher::SketchObject", "Sketch007")
sketch8.AttachmentSupport = (doc.getObject("XY_Plane"), [""])
sketch8.MapMode = "FlatFace"
sketch8.AttachmentOffset = App.Placement(V(0, 0, 67 * 25.4), App.Rotation())
sketch8.addGeometry(Part.LineSegment(V(7087, -1981, 0), V(5207, -1981, 0)), False)
sketch8.addGeometry(Part.LineSegment(V(5207, -1981, 0), V(5207, -3042, 0)), False)
sketch8.addGeometry(Part.LineSegment(V(5207, -3042, 0), V(12389, -3042, 0)), False)
sketch8.addGeometry(Part.LineSegment(V(12389, -3042, 0), V(12389, 1239, 0)), False)
sketch8.addGeometry(Part.LineSegment(V(12389, 1239, 0), V(8021, 1239, 0)), False)
sketch8.addGeometry(Part.LineSegment(V(8021, 1239, 0), V(8021, -1047, 0)), False)
sketch8.addGeometry(Part.LineSegment(V(8021, -1047, 0), V(7087, -1981, 0)), False)
sketch8.addConstraint(Sketcher.Constraint("Coincident", 0, 2, 1, 1))
sketch8.addConstraint(Sketcher.Constraint("Coincident", 1, 2, 2, 1))
sketch8.addConstraint(Sketcher.Constraint("Coincident", 2, 2, 3, 1))
sketch8.addConstraint(Sketcher.Constraint("Coincident", 3, 2, 4, 1))
sketch8.addConstraint(Sketcher.Constraint("Coincident", 4, 2, 5, 1))
sketch8.addConstraint(Sketcher.Constraint("Coincident", 5, 2, 6, 1))
sketch8.addConstraint(Sketcher.Constraint("Coincident", 6, 2, 0, 1))
sketch8.addConstraint(Sketcher.Constraint("Horizontal", 0))
sketch8.addConstraint(Sketcher.Constraint("Vertical", 1))
sketch8.addConstraint(Sketcher.Constraint("Horizontal", 2))
sketch8.addConstraint(Sketcher.Constraint("Vertical", 3))
sketch8.addConstraint(Sketcher.Constraint("Horizontal", 4))
sketch8.addConstraint(Sketcher.Constraint("Vertical", 5))
sketch8.addConstraint(Sketcher.Constraint("DistanceX", 0, 2, 0, 1, Q("74 in")))
sketch8.addConstraint(Sketcher.Constraint("DistanceX", 4, 2, 4, 1, Q("172 in")))
sketch8.addConstraint(Sketcher.Constraint("DistanceY", 5, 2, 5, 1, Q("90 in")))
sketch8.addConstraint(Sketcher.Constraint("Distance", 6, Q("52 in")))
sketch8.addConstraint(Sketcher.Constraint("DistanceX", -1, 1, 0, 2, Q("205 in")))
sketch8.addConstraint(Sketcher.Constraint("DistanceY", 0, 2, -1, 1, Q("78 in")))
sketch8.addConstraint(Sketcher.Constraint("Angle", 6, Q("-135 deg")))
sketch8.addConstraint(Sketcher.Constraint("DistanceY", 1, 2, 1, 1, Q("1060.946637 mm")))
sketch8.setExpression("Constraints[13]", "Params.sketch8_width")
sketch8.setExpression("Constraints[14]", "Params.sketch8_width2")
sketch8.setExpression("Constraints[15]", "Params.sketch8_height")
sketch8.setExpression("Constraints[16]", "Params.sketch8_length")
pad8 = body.newObject("PartDesign::Pad", "Pad007")
pad8.Profile = sketch8
pad8.setExpression("Length", "Params.pad8_length")
pad8.Reversed = True

# Sketch on XY plane
sketch9 = body.newObject("Sketcher::SketchObject", "Sketch008")
sketch9.AttachmentSupport = (doc.getObject("XY_Plane"), [""])
sketch9.MapMode = "FlatFace"
sketch9.AttachmentOffset = App.Placement(V(0, 0, 67 * 25.4), App.Rotation())
sketch9.addGeometry(Part.LineSegment(V(10154, -2026, 0), V(10154, -3042, 0)), False)
sketch9.addGeometry(Part.LineSegment(V(10154, -3042, 0), V(12389, -3042, 0)), False)
sketch9.addGeometry(Part.LineSegment(V(12389, -3042, 0), V(12389, -2026, 0)), False)
sketch9.addGeometry(Part.LineSegment(V(12389, -2026, 0), V(10154, -2026, 0)), False)
sketch9.addConstraint(Sketcher.Constraint("Coincident", 0, 2, 1, 1))
sketch9.addConstraint(Sketcher.Constraint("Coincident", 1, 2, 2, 1))
sketch9.addConstraint(Sketcher.Constraint("Coincident", 2, 2, 3, 1))
sketch9.addConstraint(Sketcher.Constraint("Coincident", 3, 2, 0, 1))
sketch9.addConstraint(Sketcher.Constraint("Vertical", 0))
sketch9.addConstraint(Sketcher.Constraint("Horizontal", 1))
sketch9.addConstraint(Sketcher.Constraint("Vertical", 2))
sketch9.addConstraint(Sketcher.Constraint("Horizontal", 3))
sketch9.addConstraint(Sketcher.Constraint("DistanceX", 1, 1, 1, 2, Q("88 in")))
sketch9.addConstraint(Sketcher.Constraint("DistanceY", 0, 2, 0, 1, Q("40 in")))
sketch9.addConstraint(Sketcher.Constraint("DistanceX", -1, 1, 0, 2, Q("10154.146637 mm")))
sketch9.addConstraint(Sketcher.Constraint("DistanceY", 0, 2, -1, 1, Q("3042.146637 mm")))
sketch9.setExpression("Constraints[8]", "Params.sketch9_width")
sketch9.setExpression("Constraints[9]", "Params.sketch9_height")
pocket1 = body.newObject("PartDesign::Pocket", "Pocket")
pocket1.Profile = sketch9
pocket1.Type = "ThroughAll"

# Sketch on XZ plane
sketch10 = body.newObject("Sketcher::SketchObject", "Sketch009")
sketch10.AttachmentSupport = (doc.getObject("XZ_Plane"), [""])
sketch10.MapMode = "FlatFace"
sketch10.AttachmentOffset = App.Placement(V(0, 0, 3042.146637), App.Rotation())
sketch10.addGeometry(Part.LineSegment(V(10154, 1524, 0), V(10154, 1702, 0)), False)
sketch10.addGeometry(Part.LineSegment(V(10154, 1702, 0), V(9710, 1702, 0)), False)
sketch10.addGeometry(Part.LineSegment(V(9710, 1702, 0), V(12206, 0, 0)), False)
sketch10.addGeometry(Part.LineSegment(V(12206, 0, 0), V(12389, 0, 0)), False)
sketch10.addGeometry(Part.LineSegment(V(12389, 0, 0), V(12389, 190, 0)), False)
sketch10.addGeometry(Part.LineSegment(V(12389, 190, 0), V(12110, 190, 0)), False)
sketch10.addGeometry(Part.LineSegment(V(12110, 190, 0), V(12110, 381, 0)), False)
sketch10.addGeometry(Part.LineSegment(V(12110, 381, 0), V(11831, 381, 0)), False)
sketch10.addGeometry(Part.LineSegment(V(11831, 381, 0), V(11831, 572, 0)), False)
sketch10.addGeometry(Part.LineSegment(V(11831, 572, 0), V(11551, 572, 0)), False)
sketch10.addGeometry(Part.LineSegment(V(11551, 572, 0), V(11551, 762, 0)), False)
sketch10.addGeometry(Part.LineSegment(V(11551, 762, 0), V(11272, 762, 0)), False)
sketch10.addGeometry(Part.LineSegment(V(11272, 762, 0), V(11272, 952, 0)), False)
sketch10.addGeometry(Part.LineSegment(V(11272, 952, 0), V(10992, 952, 0)), False)
sketch10.addGeometry(Part.LineSegment(V(10992, 952, 0), V(10992, 1143, 0)), False)
sketch10.addGeometry(Part.LineSegment(V(10992, 1143, 0), V(10713, 1143, 0)), False)
sketch10.addGeometry(Part.LineSegment(V(10713, 1143, 0), V(10713, 1334, 0)), False)
sketch10.addGeometry(Part.LineSegment(V(10713, 1334, 0), V(10434, 1334, 0)), False)
sketch10.addGeometry(Part.LineSegment(V(10434, 1334, 0), V(10434, 1524, 0)), False)
sketch10.addGeometry(Part.LineSegment(V(10434, 1524, 0), V(10154, 1524, 0)), False)
sketch10.addConstraint(Sketcher.Constraint("Coincident", 0, 2, 1, 1))
sketch10.addConstraint(Sketcher.Constraint("Coincident", 1, 2, 2, 1))
sketch10.addConstraint(Sketcher.Constraint("Coincident", 2, 2, 3, 1))
sketch10.addConstraint(Sketcher.Constraint("Coincident", 3, 2, 4, 1))
sketch10.addConstraint(Sketcher.Constraint("Coincident", 4, 2, 5, 1))
sketch10.addConstraint(Sketcher.Constraint("Coincident", 5, 2, 6, 1))
sketch10.addConstraint(Sketcher.Constraint("Coincident", 6, 2, 7, 1))
sketch10.addConstraint(Sketcher.Constraint("Coincident", 7, 2, 8, 1))
sketch10.addConstraint(Sketcher.Constraint("Coincident", 8, 2, 9, 1))
sketch10.addConstraint(Sketcher.Constraint("Coincident", 9, 2, 10, 1))
sketch10.addConstraint(Sketcher.Constraint("Coincident", 10, 2, 11, 1))
sketch10.addConstraint(Sketcher.Constraint("Coincident", 11, 2, 12, 1))
sketch10.addConstraint(Sketcher.Constraint("Coincident", 12, 2, 13, 1))
sketch10.addConstraint(Sketcher.Constraint("Coincident", 13, 2, 14, 1))
sketch10.addConstraint(Sketcher.Constraint("Coincident", 14, 2, 15, 1))
sketch10.addConstraint(Sketcher.Constraint("Coincident", 15, 2, 16, 1))
sketch10.addConstraint(Sketcher.Constraint("Coincident", 16, 2, 17, 1))
sketch10.addConstraint(Sketcher.Constraint("Coincident", 17, 2, 18, 1))
sketch10.addConstraint(Sketcher.Constraint("Coincident", 18, 2, 19, 1))
sketch10.addConstraint(Sketcher.Constraint("Coincident", 19, 2, 0, 1))
sketch10.addConstraint(Sketcher.Constraint("Vertical", 0))
sketch10.addConstraint(Sketcher.Constraint("Horizontal", 1))
sketch10.addConstraint(Sketcher.Constraint("Horizontal", 3))
sketch10.addConstraint(Sketcher.Constraint("Vertical", 4))
sketch10.addConstraint(Sketcher.Constraint("Horizontal", 5))
sketch10.addConstraint(Sketcher.Constraint("Vertical", 6))
sketch10.addConstraint(Sketcher.Constraint("Horizontal", 7))
sketch10.addConstraint(Sketcher.Constraint("Vertical", 8))
sketch10.addConstraint(Sketcher.Constraint("Horizontal", 9))
sketch10.addConstraint(Sketcher.Constraint("Vertical", 10))
sketch10.addConstraint(Sketcher.Constraint("Horizontal", 11))
sketch10.addConstraint(Sketcher.Constraint("Vertical", 12))
sketch10.addConstraint(Sketcher.Constraint("Horizontal", 13))
sketch10.addConstraint(Sketcher.Constraint("Vertical", 14))
sketch10.addConstraint(Sketcher.Constraint("Horizontal", 15))
sketch10.addConstraint(Sketcher.Constraint("Vertical", 16))
sketch10.addConstraint(Sketcher.Constraint("Horizontal", 17))
sketch10.addConstraint(Sketcher.Constraint("Vertical", 18))
sketch10.addConstraint(Sketcher.Constraint("Horizontal", 19))
sketch10.addConstraint(Sketcher.Constraint("PointOnObject", 2, 2, -1))
sketch10.addConstraint(Sketcher.Constraint("Equal", 5, 7))
sketch10.addConstraint(Sketcher.Constraint("Equal", 7, 9))
sketch10.addConstraint(Sketcher.Constraint("Equal", 9, 11))
sketch10.addConstraint(Sketcher.Constraint("Equal", 11, 13))
sketch10.addConstraint(Sketcher.Constraint("Equal", 13, 15))
sketch10.addConstraint(Sketcher.Constraint("Equal", 15, 17))
sketch10.addConstraint(Sketcher.Constraint("Equal", 17, 19))
sketch10.addConstraint(Sketcher.Constraint("Equal", 4, 6))
sketch10.addConstraint(Sketcher.Constraint("Equal", 6, 8))
sketch10.addConstraint(Sketcher.Constraint("Equal", 8, 10))
sketch10.addConstraint(Sketcher.Constraint("Equal", 10, 12))
sketch10.addConstraint(Sketcher.Constraint("Equal", 12, 14))
sketch10.addConstraint(Sketcher.Constraint("Equal", 14, 16))
sketch10.addConstraint(Sketcher.Constraint("Equal", 16, 18))
sketch10.addConstraint(Sketcher.Constraint("DistanceX", 5, 2, 5, 1, Q("11 in")))
sketch10.addConstraint(Sketcher.Constraint("DistanceY", 0, 1, 0, 2, Q("7 in")))
sketch10.addConstraint(Sketcher.Constraint("DistanceY", 4, 1, 4, 2, Q("7.5 in")))
sketch10.addConstraint(Sketcher.Constraint("DistanceX", 1, 2, 1, 1, Q("443.710769 mm")))
sketch10.addConstraint(Sketcher.Constraint("DistanceX", -1, 1, 2, 2, Q("12206.409201 mm")))
sketch10.addConstraint(Sketcher.Constraint("DistanceX", 3, 1, 3, 2, Q("182.937436 mm")))
sketch10.setExpression("Constraints[54]", "Params.sketch10_width")
sketch10.setExpression("Constraints[55]", "Params.sketch10_height")
sketch10.setExpression("Constraints[56]", "Params.sketch10_height2")
pad9 = body.newObject("PartDesign::Pad", "Pad008")
pad9.Profile = sketch10
pad9.setExpression("Length", "Params.pad9_length")
pad9.Reversed = True

doc.recompute()
